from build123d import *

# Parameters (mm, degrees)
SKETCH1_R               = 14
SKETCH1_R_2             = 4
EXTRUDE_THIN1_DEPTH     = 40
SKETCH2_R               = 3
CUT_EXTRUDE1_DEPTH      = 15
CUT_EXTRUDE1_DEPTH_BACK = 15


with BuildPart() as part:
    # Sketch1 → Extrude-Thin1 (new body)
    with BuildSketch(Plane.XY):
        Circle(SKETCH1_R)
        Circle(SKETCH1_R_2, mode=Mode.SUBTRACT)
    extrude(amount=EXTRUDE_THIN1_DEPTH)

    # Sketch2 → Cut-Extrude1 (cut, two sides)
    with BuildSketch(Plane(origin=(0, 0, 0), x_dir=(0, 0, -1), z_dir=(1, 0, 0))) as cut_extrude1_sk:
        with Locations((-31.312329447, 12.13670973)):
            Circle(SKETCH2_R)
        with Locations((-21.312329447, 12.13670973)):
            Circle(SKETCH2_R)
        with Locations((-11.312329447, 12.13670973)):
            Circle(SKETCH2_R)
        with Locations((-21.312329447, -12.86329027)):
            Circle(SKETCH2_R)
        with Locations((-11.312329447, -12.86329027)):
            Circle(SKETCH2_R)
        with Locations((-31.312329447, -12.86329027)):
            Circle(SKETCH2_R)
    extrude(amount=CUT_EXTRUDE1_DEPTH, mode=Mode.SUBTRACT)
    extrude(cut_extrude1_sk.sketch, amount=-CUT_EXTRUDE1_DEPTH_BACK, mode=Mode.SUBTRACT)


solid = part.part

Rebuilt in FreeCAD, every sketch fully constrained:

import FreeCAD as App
import Part
import Sketcher

V = App.Vector
Q = App.Units.Quantity

doc = App.newDocument("Part")
params = doc.addObject("Spreadsheet::Sheet", "Params")
for row, (alias, value) in enumerate([
    ("sketch1_diameter", "28 mm"),
    ("sketch1_diameter2", "8 mm"),
    ("pad1_length", "40 mm"),
    ("sketch2_diameter", "6 mm"),
], start=1):
    params.set(f"A{row}", alias)
    params.set(f"B{row}", "=" + value)
    params.setAlias(f"B{row}", alias)

body = doc.addObject("PartDesign::Body", "Body")

# Sketch on XY plane
sketch1 = body.newObject("Sketcher::SketchObject", "Sketch")
sketch1.AttachmentSupport = (doc.getObject("XY_Plane"), [""])
sketch1.MapMode = "FlatFace"
sketch1.addGeometry(Part.Circle(V(0, 0, 0), V(0, 0, 1), 14), False)
sketch1.addGeometry(Part.Circle(V(0, 0, 0), V(0, 0, 1), 4), False)
sketch1.addConstraint(Sketcher.Constraint("Coincident", 0, 3, -1, 1))
sketch1.addConstraint(Sketcher.Constraint("Coincident", 1, 3, -1, 1))
sketch1.addConstraint(Sketcher.Constraint("Diameter", 0, Q("28 mm")))
sketch1.addConstraint(Sketcher.Constraint("Diameter", 1, Q("8 mm")))
sketch1.setExpression("Constraints[2]", "Params.sketch1_diameter")
sketch1.setExpression("Constraints[3]", "Params.sketch1_diameter2")
pad1 = body.newObject("PartDesign::Pad", "Pad")
pad1.Profile = sketch1
pad1.setExpression("Length", "Params.pad1_length")

# Sketch on YZ plane
sketch2 = body.newObject("Sketcher::SketchObject", "Sketch001")
sketch2.AttachmentSupport = (doc.getObject("YZ_Plane"), [""])
sketch2.MapMode = "FlatFace"
sketch2.addGeometry(Part.Circle(V(12.1, 31.3, 0), V(0, 0, 1), 3), False)
sketch2.addGeometry(Part.Circle(V(12.1, 21.3, 0), V(0, 0, 1), 3), False)
sketch2.addGeometry(Part.Circle(V(12.1, 11.3, 0), V(0, 0, 1), 3), False)
sketch2.addGeometry(Part.Circle(V(-12.9, 21.3, 0), V(0, 0, 1), 3), False)
sketch2.addGeometry(Part.Circle(V(-12.9, 11.3, 0), V(0, 0, 1), 3), False)
sketch2.addGeometry(Part.Circle(V(-12.9, 31.3, 0), V(0, 0, 1), 3), False)
sketch2.addConstraint(Sketcher.Constraint("Equal", 0, 1))
sketch2.addConstraint(Sketcher.Constraint("Equal", 1, 2))
sketch2.addConstraint(Sketcher.Constraint("Equal", 2, 3))
sketch2.addConstraint(Sketcher.Constraint("Equal", 3, 4))
sketch2.addConstraint(Sketcher.Constraint("Equal", 4, 5))
sketch2.addConstraint(Sketcher.Constraint("Horizontal", 1, 3, 3, 3))
sketch2.addConstraint(Sketcher.Constraint("Horizontal", 2, 3, 4, 3))
sketch2.addConstraint(Sketcher.Constraint("Horizontal", 0, 3, 5, 3))
sketch2.addConstraint(Sketcher.Constraint("Vertical", 0, 3, 1, 3))
sketch2.addConstraint(Sketcher.Constraint("Vertical", 1, 3, 2, 3))
sketch2.addConstraint(Sketcher.Constraint("Vertical", 3, 3, 4, 3))
sketch2.addConstraint(Sketcher.Constraint("Vertical", 4, 3, 5, 3))
sketch2.addConstraint(Sketcher.Constraint("Diameter", 0, Q("6 mm")))
sketch2.addConstraint(Sketcher.Constraint("DistanceY", 1, 3, 0, 3, Q("10 mm")))
sketch2.addConstraint(Sketcher.Constraint("DistanceY", 2, 3, 1, 3, Q("10 mm")))
sketch2.addConstraint(Sketcher.Constraint("DistanceX", 3, 3, 1, 3, Q("25 mm")))
sketch2.addConstraint(Sketcher.Constraint("DistanceX", -1, 1, 0, 3, Q("12.13671 mm")))
sketch2.addConstraint(Sketcher.Constraint("DistanceY", -1, 1, 0, 3, Q("31.312329 mm")))
sketch2.setExpression("Constraints[12]", "Params.sketch2_diameter")
pocket1 = body.newObject("PartDesign::Pocket", "Pocket")
pocket1.Profile = sketch2
pocket1.Type = "ThroughAll"
pocket1.Midplane = True

doc.recompute()
